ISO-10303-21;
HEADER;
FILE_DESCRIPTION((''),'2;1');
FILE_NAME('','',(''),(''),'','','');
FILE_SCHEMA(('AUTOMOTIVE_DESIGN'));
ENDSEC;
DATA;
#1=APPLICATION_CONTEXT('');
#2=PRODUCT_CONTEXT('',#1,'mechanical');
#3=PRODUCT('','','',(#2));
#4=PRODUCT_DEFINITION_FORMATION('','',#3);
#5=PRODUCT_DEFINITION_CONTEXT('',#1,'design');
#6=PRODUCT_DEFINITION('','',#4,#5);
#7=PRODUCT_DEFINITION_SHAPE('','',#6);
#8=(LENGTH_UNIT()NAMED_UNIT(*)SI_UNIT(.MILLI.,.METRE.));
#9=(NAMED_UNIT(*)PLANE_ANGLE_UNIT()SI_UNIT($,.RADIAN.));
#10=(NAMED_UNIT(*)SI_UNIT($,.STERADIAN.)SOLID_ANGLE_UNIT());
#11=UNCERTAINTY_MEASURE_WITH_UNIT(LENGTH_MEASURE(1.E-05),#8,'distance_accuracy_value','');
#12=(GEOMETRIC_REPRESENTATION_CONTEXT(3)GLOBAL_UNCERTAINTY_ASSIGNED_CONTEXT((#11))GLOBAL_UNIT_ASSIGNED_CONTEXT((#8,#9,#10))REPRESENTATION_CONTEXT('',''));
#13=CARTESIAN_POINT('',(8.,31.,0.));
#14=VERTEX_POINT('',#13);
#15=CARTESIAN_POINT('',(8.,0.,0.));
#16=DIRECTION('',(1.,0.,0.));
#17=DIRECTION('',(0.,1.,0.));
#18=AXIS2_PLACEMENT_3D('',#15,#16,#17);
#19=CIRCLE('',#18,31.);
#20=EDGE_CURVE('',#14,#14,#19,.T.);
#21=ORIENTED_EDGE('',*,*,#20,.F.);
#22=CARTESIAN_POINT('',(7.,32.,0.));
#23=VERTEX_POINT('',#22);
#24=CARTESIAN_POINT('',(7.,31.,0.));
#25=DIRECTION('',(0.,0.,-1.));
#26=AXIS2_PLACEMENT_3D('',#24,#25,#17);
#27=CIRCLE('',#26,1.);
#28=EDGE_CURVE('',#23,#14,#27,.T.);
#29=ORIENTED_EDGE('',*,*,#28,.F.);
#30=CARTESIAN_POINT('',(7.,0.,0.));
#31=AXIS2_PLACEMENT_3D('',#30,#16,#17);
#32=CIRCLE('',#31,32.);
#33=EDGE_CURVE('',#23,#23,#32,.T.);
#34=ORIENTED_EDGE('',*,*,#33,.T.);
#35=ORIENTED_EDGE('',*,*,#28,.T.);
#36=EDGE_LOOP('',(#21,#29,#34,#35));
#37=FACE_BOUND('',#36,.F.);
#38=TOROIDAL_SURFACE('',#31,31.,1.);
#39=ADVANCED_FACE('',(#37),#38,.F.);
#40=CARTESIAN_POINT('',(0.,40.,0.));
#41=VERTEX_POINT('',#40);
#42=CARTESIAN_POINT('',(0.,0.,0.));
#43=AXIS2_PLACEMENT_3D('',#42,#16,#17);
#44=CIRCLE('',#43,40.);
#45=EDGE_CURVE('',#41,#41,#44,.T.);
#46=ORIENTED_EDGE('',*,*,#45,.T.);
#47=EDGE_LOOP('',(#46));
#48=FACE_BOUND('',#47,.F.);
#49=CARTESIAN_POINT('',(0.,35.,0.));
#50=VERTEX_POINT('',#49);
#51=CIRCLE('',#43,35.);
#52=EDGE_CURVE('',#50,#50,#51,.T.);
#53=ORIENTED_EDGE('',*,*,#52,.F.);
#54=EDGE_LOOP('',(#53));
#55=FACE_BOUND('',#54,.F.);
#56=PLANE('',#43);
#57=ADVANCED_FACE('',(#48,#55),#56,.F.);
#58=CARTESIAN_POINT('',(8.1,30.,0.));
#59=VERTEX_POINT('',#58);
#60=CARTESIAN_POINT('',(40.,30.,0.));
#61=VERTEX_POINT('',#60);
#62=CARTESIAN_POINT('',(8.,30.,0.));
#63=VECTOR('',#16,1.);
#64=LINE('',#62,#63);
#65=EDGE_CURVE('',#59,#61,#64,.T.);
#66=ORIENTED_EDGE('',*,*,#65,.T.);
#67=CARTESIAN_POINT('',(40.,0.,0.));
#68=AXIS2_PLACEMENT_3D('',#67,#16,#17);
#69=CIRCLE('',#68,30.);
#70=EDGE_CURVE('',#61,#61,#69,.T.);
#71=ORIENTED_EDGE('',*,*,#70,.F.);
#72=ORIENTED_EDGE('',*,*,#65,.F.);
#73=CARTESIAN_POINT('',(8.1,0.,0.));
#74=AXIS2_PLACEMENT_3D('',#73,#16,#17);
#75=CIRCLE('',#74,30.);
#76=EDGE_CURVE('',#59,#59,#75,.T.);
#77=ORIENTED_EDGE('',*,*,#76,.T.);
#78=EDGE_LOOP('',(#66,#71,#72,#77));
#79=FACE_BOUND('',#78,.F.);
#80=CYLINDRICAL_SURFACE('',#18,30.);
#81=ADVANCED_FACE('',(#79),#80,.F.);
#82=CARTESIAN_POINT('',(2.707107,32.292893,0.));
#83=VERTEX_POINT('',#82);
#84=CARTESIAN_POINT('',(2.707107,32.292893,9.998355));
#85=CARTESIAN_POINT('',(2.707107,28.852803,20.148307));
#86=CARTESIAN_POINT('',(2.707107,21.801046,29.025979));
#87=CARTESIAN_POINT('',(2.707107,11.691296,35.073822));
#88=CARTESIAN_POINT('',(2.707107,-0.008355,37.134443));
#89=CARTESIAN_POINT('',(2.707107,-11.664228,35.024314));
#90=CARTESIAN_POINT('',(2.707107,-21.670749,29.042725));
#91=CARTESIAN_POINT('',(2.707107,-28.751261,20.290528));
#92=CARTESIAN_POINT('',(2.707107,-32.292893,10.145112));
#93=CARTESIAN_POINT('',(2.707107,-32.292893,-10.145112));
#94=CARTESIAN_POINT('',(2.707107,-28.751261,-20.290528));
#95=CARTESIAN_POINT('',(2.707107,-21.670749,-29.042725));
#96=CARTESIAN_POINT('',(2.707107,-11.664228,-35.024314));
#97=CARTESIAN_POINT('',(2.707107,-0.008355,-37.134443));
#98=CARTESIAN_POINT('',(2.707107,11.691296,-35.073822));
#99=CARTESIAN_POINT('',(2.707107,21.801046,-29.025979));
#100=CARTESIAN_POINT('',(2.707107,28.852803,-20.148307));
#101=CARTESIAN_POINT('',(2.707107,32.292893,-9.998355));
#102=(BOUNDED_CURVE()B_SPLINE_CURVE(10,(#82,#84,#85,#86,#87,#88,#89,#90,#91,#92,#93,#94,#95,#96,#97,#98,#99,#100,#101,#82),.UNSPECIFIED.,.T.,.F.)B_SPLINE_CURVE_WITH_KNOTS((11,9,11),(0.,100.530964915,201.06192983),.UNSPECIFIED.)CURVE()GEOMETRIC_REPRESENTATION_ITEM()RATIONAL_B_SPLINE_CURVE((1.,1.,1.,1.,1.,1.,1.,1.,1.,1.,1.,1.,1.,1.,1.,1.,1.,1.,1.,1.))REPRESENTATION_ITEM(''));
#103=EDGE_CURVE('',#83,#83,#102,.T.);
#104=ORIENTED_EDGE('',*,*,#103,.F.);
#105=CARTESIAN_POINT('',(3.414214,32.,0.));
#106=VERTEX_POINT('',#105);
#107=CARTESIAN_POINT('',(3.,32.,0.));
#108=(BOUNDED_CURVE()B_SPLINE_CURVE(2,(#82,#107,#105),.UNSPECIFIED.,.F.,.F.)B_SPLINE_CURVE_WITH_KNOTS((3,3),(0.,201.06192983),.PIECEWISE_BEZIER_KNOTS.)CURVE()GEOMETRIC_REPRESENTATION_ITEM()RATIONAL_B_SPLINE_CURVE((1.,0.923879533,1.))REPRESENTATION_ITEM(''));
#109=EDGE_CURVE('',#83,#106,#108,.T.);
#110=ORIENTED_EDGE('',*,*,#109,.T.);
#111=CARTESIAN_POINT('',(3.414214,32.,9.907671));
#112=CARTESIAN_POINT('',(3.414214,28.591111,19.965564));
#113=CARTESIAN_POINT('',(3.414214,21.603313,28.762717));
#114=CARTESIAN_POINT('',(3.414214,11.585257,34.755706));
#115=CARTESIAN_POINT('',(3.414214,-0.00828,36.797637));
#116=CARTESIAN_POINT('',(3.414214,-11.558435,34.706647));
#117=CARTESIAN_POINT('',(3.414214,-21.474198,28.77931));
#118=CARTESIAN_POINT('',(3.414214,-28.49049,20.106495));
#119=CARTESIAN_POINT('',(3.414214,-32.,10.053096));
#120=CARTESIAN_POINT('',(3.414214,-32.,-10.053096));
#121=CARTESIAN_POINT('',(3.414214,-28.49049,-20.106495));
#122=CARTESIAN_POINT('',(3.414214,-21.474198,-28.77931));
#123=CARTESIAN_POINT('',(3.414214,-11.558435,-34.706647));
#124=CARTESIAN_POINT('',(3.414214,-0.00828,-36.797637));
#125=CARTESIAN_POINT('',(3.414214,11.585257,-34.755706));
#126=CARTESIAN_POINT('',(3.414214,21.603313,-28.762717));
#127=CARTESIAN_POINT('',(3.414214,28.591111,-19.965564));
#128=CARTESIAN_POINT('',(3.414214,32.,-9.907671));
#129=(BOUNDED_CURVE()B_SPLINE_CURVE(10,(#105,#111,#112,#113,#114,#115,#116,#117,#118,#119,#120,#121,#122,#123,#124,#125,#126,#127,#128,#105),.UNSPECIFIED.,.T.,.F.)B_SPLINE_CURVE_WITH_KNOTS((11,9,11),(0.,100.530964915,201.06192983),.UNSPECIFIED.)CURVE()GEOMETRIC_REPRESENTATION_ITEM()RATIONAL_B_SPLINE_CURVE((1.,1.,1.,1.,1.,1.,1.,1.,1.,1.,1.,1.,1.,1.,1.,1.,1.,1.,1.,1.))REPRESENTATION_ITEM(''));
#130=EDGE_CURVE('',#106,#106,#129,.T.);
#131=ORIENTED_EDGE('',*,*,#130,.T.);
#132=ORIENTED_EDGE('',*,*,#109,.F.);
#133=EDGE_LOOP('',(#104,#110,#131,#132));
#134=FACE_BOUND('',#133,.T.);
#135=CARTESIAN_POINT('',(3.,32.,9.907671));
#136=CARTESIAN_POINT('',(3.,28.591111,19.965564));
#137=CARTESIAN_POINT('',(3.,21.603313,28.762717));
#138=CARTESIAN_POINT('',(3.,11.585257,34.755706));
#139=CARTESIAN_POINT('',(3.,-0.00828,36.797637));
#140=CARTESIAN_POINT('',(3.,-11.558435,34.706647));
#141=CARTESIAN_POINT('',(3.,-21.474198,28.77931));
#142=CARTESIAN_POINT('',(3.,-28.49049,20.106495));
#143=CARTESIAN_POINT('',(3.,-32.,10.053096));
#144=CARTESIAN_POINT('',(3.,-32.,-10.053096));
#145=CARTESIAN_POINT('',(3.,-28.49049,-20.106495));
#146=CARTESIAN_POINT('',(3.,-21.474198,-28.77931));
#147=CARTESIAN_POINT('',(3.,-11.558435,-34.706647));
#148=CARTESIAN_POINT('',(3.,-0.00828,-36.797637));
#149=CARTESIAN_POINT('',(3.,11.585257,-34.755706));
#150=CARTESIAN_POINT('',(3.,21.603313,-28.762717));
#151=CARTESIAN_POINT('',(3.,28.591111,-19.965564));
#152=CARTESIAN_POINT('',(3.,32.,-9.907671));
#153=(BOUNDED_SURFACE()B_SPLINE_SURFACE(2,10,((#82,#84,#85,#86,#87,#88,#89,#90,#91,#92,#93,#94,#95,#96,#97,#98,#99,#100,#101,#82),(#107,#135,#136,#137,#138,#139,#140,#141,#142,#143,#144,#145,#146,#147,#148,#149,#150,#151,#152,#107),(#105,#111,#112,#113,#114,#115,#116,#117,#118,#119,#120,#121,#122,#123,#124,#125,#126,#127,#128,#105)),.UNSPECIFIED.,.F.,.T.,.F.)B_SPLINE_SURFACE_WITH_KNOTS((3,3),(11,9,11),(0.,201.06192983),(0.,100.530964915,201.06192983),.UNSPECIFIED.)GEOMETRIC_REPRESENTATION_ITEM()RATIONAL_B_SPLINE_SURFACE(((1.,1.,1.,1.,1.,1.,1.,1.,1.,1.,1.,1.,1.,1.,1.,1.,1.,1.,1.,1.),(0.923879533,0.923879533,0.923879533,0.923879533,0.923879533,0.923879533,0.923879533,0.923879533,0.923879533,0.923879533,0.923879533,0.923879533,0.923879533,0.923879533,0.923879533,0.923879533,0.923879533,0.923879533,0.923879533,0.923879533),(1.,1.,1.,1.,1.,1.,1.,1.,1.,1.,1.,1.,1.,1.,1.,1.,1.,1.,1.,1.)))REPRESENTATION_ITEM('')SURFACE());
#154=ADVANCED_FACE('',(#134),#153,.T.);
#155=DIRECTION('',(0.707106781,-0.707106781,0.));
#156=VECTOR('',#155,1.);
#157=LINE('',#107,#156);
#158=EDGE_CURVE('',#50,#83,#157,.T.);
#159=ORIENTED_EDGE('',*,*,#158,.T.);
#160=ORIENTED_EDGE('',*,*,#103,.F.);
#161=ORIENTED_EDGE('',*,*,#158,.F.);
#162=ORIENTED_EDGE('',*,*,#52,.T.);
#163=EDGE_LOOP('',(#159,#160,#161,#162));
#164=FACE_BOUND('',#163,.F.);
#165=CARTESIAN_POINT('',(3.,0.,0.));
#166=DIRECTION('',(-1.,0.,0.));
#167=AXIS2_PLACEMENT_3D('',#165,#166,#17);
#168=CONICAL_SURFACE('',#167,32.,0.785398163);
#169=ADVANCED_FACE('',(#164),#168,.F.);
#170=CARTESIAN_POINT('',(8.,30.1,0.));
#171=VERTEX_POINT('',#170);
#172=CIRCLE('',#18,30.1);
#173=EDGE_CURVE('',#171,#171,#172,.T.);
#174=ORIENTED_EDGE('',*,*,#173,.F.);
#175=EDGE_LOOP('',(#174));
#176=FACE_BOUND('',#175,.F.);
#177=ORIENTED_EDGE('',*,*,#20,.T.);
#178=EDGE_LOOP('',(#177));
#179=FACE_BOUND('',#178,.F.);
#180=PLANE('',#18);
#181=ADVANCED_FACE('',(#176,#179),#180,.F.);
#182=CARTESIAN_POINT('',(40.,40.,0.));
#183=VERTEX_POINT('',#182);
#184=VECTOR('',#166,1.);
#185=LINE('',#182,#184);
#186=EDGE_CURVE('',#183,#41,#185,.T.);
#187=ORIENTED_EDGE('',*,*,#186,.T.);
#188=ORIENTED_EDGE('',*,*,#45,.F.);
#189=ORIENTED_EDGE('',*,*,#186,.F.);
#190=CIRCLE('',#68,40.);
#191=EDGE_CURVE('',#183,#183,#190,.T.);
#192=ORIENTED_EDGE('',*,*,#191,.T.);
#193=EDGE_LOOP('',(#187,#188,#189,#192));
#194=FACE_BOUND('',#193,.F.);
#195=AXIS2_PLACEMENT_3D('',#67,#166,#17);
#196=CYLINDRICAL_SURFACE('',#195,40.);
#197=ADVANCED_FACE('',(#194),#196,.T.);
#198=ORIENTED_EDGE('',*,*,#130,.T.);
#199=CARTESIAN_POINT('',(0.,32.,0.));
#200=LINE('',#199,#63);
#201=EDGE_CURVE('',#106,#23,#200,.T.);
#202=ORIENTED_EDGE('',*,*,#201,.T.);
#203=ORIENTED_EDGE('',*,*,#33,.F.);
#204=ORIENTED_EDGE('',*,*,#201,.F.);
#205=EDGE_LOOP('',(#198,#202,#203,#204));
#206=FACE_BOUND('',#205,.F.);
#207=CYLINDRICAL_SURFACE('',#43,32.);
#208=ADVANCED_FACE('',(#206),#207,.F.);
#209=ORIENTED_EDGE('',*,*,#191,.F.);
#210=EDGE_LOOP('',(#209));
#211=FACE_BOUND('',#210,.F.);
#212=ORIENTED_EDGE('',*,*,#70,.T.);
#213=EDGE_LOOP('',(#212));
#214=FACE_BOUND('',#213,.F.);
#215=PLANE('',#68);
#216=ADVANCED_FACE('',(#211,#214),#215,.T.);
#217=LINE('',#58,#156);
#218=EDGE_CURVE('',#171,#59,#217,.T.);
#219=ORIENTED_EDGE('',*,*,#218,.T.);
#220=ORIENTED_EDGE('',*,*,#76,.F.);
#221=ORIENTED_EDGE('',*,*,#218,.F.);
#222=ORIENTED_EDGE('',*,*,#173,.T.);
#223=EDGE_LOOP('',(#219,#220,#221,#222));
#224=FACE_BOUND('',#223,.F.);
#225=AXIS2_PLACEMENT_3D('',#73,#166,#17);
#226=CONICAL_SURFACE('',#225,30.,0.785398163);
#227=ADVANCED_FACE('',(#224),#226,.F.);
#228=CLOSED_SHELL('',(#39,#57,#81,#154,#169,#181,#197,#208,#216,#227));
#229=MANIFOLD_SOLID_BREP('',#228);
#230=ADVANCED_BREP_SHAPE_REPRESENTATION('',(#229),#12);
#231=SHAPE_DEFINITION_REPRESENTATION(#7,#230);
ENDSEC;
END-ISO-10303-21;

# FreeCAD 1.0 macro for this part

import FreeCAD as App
import Part
import Sketcher
from FreeCAD import Vector
Q = App.Units.Quantity


def edges_at(feature, points):
    """Names of the edges that pass closest to the given points."""
    edges = feature.Shape.Edges
    near = lambda p: min(range(len(edges)), key=lambda i: edges[i].distToShape(Part.Vertex(*p))[0])
    return sorted({f"Edge{near(p) + 1}" for p in points})

doc = App.newDocument("Part")
body = doc.addObject("PartDesign::Body", "Body")

# Sketch on XY plane
sketch1 = body.newObject("Sketcher::SketchObject", "Sketch")
sketch1.AttachmentSupport = (doc.getObject("XY_Plane"), [""])
sketch1.MapMode = "FlatFace"
sketch1.addGeometry(Part.LineSegment(Vector(40, 40, 0), Vector(0, 40, 0)), False)
sketch1.addGeometry(Part.LineSegment(Vector(0, 40, 0), Vector(0, 32, 0)), False)
sketch1.addGeometry(Part.LineSegment(Vector(0, 32, 0), Vector(8, 32, 0)), False)
sketch1.addGeometry(Part.LineSegment(Vector(8, 32, 0), Vector(8, 30, 0)), False)
sketch1.addGeometry(Part.LineSegment(Vector(8, 30, 0), Vector(40, 30, 0)), False)
sketch1.addGeometry(Part.LineSegment(Vector(40, 30, 0), Vector(40, 40, 0)), False)
sketch1.addConstraint(Sketcher.Constraint("Coincident", 0, 2, 1, 1))
sketch1.addConstraint(Sketcher.Constraint("Coincident", 1, 2, 2, 1))
sketch1.addConstraint(Sketcher.Constraint("Coincident", 2, 2, 3, 1))
sketch1.addConstraint(Sketcher.Constraint("Coincident", 3, 2, 4, 1))
sketch1.addConstraint(Sketcher.Constraint("Coincident", 4, 2, 5, 1))
sketch1.addConstraint(Sketcher.Constraint("Coincident", 5, 2, 0, 1))
sketch1.addConstraint(Sketcher.Constraint("Horizontal", 0))
sketch1.addConstraint(Sketcher.Constraint("Vertical", 1))
sketch1.addConstraint(Sketcher.Constraint("Horizontal", 2))
sketch1.addConstraint(Sketcher.Constraint("Vertical", 3))
sketch1.addConstraint(Sketcher.Constraint("Horizontal", 4))
sketch1.addConstraint(Sketcher.Constraint("Vertical", 5))
sketch1.addConstraint(Sketcher.Constraint("PointOnObject", 0, 2, -2))
sketch1.addConstraint(Sketcher.Constraint("Equal", 2, 1))
sketch1.addConstraint(Sketcher.Constraint("DistanceX", 0, 2, 0, 1, Q("40 mm")))
sketch1.addConstraint(Sketcher.Constraint("DistanceX", 2, 1, 2, 2, Q("8 mm")))
sketch1.addConstraint(Sketcher.Constraint("DistanceY", 3, 2, 3, 1, Q("2 mm")))
sketch1.addConstraint(Sketcher.Constraint("DistanceY", -1, 1, 0, 2, Q("40 mm")))
revolution = body.newObject("PartDesign::Revolution", "Revolution")
revolution.Profile = sketch1
revolution.ReferenceAxis = (sketch1, ["H_Axis"])
revolution.Angle = 360
doc.recompute()

chamfer = body.newObject("PartDesign::Chamfer", "Chamfer")
chamfer.Base = (revolution, edges_at(revolution, [(0, -32, 0)]))
chamfer.Size = 3
doc.recompute()

fillet = body.newObject("PartDesign::Fillet", "Fillet")
fillet.Base = (chamfer, edges_at(chamfer, [(8, -32, 0), (3, -32, 0)]))
fillet.Radius = 1
doc.recompute()

chamfer2 = body.newObject("PartDesign::Chamfer", "Chamfer001")
chamfer2.Base = (fillet, edges_at(fillet, [(8, -30, 0)]))
chamfer2.Size = 0.1

doc.recompute()
